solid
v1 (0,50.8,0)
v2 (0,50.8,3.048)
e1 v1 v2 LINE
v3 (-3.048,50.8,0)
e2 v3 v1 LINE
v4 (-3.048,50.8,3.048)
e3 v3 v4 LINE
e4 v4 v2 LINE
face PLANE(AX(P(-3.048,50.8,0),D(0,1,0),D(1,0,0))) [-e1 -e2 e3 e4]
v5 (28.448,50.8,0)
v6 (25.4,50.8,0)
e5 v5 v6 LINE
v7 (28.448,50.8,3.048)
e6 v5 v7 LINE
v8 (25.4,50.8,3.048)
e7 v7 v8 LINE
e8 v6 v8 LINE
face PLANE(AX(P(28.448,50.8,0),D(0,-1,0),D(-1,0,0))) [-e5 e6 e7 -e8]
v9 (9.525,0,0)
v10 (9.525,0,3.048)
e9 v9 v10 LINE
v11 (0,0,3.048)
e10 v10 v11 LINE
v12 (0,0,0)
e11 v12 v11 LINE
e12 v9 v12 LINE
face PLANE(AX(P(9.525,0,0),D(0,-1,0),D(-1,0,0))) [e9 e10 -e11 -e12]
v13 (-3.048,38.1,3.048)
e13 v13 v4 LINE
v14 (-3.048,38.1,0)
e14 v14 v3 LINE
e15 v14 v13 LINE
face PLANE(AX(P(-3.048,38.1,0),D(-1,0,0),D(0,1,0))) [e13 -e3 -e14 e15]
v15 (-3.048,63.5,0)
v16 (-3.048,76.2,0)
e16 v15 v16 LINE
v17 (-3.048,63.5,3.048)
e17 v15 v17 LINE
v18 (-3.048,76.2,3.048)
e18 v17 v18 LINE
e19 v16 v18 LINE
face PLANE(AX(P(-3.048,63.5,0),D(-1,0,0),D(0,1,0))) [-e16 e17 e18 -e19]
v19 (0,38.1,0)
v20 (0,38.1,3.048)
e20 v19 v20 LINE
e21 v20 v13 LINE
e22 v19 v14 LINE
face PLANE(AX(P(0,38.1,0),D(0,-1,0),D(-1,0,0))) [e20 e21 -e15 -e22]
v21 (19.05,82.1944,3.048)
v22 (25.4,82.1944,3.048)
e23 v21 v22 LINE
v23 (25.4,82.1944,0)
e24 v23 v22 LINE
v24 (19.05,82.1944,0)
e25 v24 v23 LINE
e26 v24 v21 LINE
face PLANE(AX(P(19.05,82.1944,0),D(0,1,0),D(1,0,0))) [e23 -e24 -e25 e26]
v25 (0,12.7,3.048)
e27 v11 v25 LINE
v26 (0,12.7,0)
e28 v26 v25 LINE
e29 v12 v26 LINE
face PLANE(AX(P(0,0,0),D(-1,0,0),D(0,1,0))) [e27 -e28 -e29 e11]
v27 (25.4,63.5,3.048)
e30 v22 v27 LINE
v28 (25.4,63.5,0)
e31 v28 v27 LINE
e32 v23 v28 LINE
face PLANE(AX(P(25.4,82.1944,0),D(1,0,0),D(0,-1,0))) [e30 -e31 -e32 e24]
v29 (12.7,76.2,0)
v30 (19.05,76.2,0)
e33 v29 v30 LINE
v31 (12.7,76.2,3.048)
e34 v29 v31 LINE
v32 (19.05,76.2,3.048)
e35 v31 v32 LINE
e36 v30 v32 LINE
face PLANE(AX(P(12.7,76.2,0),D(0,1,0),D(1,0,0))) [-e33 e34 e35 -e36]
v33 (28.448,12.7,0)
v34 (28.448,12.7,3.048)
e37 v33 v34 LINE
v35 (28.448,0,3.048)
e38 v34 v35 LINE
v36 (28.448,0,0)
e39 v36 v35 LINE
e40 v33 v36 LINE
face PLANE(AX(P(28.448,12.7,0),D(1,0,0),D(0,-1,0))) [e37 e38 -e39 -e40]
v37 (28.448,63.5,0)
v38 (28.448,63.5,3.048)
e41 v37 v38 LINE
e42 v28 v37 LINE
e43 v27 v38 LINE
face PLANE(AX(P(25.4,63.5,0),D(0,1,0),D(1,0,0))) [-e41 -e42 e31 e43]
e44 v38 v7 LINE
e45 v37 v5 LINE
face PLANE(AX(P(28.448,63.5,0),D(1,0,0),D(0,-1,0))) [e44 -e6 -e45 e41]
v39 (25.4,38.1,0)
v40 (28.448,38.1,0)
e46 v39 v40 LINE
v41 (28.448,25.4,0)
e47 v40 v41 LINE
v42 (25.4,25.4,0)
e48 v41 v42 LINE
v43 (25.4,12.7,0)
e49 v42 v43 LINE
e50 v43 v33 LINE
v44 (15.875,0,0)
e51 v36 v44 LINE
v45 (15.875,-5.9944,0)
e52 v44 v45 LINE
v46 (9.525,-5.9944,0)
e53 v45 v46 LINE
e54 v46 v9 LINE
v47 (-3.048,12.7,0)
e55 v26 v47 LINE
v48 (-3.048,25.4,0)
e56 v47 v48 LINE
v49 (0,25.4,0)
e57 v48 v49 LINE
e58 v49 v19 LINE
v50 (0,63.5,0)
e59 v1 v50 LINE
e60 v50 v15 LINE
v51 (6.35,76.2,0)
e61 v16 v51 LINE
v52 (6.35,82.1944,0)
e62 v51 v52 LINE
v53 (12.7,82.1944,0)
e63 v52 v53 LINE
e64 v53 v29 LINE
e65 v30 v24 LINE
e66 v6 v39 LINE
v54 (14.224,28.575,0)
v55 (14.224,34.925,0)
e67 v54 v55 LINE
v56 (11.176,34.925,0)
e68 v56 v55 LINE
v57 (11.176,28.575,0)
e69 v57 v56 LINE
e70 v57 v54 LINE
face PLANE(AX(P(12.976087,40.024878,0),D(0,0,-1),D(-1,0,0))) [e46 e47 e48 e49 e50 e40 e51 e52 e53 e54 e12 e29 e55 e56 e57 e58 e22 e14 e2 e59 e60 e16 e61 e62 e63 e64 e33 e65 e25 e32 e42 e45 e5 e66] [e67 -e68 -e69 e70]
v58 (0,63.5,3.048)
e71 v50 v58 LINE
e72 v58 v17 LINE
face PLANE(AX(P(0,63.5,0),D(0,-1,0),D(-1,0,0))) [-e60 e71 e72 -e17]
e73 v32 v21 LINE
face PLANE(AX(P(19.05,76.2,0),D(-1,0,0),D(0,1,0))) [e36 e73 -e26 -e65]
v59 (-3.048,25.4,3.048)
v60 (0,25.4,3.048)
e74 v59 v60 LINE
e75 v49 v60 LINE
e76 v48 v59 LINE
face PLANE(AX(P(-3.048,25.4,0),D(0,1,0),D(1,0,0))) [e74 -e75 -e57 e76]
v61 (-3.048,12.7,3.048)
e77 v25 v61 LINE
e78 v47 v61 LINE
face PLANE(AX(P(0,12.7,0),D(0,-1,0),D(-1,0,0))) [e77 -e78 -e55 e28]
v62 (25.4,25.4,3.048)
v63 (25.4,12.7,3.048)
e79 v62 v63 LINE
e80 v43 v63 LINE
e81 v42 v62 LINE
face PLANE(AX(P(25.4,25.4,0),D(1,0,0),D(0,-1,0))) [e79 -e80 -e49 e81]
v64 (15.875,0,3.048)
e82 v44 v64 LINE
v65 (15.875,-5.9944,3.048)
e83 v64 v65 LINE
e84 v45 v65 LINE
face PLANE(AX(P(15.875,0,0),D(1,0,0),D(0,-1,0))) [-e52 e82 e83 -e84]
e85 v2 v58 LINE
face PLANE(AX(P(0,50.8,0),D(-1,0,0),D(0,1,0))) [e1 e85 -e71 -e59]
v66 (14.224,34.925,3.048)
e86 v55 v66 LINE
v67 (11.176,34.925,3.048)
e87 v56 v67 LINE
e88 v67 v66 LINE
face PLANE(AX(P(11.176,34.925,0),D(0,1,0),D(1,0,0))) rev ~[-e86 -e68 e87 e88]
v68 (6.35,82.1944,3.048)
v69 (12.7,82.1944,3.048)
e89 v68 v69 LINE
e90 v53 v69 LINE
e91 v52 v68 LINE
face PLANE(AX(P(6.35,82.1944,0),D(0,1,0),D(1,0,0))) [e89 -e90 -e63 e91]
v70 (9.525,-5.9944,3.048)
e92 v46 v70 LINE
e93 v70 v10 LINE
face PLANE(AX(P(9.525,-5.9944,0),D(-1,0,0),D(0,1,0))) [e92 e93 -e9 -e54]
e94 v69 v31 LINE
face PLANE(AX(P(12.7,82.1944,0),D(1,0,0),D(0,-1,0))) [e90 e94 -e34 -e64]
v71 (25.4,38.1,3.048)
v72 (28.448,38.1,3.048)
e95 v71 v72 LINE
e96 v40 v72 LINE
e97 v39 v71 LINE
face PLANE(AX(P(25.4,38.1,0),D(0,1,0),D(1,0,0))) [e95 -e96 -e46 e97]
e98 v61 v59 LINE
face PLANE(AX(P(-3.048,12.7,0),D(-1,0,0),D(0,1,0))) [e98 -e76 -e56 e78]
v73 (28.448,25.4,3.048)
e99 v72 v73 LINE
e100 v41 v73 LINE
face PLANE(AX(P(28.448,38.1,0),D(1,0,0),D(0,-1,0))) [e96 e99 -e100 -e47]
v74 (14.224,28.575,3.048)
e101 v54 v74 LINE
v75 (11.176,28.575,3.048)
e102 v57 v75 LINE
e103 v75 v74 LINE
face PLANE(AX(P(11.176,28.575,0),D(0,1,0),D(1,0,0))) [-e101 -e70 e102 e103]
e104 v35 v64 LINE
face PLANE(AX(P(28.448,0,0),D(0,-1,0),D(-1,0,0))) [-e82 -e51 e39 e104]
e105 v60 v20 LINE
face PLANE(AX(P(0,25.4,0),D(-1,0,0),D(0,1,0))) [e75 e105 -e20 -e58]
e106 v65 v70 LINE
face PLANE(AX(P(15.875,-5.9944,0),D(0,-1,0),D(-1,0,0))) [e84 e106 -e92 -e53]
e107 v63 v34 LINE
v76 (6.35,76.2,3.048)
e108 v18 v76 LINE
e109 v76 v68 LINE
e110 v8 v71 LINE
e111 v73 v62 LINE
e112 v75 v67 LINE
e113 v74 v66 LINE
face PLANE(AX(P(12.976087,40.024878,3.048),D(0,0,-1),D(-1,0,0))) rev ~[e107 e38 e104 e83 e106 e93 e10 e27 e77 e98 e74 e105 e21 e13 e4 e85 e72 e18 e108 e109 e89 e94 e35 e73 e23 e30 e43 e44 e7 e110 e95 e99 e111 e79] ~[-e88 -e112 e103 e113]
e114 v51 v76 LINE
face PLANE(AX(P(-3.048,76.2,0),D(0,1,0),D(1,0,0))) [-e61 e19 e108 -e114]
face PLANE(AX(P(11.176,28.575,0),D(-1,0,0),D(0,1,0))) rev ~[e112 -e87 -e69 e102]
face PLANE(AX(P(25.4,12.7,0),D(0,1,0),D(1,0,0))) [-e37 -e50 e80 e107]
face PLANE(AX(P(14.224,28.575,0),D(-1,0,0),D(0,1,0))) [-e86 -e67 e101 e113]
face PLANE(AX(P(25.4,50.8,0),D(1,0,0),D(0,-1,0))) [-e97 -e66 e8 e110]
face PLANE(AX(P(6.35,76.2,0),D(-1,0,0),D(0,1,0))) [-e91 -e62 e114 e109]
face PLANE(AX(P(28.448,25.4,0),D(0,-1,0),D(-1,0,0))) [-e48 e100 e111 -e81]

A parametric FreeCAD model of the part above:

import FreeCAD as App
import Part
import Sketcher
from FreeCAD import Vector
Q = App.Units.Quantity

doc = App.newDocument("Part")
params = doc.addObject("Spreadsheet::Sheet", "Params")
for row, (alias, value) in enumerate([
    ("sketch1_height", "0.5 in"),
    ("sketch1_width", "0.25 in"),
    ("sketch1_width2", "0.12 in"),
    ("sketch1_width3", "0.375 in"),
    ("sketch1_height2", "0.236 in"),
    ("pad1_length", "0.12 in"),
], start=1):
    params.set(f"A{row}", alias)
    params.set(f"B{row}", "=" + value)
    params.setAlias(f"B{row}", alias)

body = doc.addObject("PartDesign::Body", "Body")

# Sketch on XY plane
sketch1 = body.newObject("Sketcher::SketchObject", "Sketch")
sketch1.AttachmentSupport = (doc.getObject("XY_Plane"), [""])
sketch1.MapMode = "FlatFace"
sketch1.addGeometry([
    Part.LineSegment(Vector(0, 12.7, 0), Vector(0, 0, 0)),  # 0
    Part.LineSegment(Vector(0, 0, 0), Vector(9.5, 0, 0)),  # 1
    Part.LineSegment(Vector(9.5, 0, 0), Vector(9.5, -6, 0)),  # 2
    Part.LineSegment(Vector(9.5, -6, 0), Vector(15.9, -6, 0)),  # 3
    Part.LineSegment(Vector(15.9, -6, 0), Vector(15.9, 0, 0)),  # 4
    Part.LineSegment(Vector(15.9, 0, 0), Vector(28.4, 0, 0)),  # 5
    Part.LineSegment(Vector(28.4, 0, 0), Vector(28.4, 12.7, 0)),  # 6
    Part.LineSegment(Vector(28.4, 12.7, 0), Vector(25.4, 12.7, 0)),  # 7
    Part.LineSegment(Vector(25.4, 12.7, 0), Vector(25.4, 25.4, 0)),  # 8
    Part.LineSegment(Vector(25.4, 25.4, 0), Vector(28.4, 25.4, 0)),  # 9
    Part.LineSegment(Vector(28.4, 25.4, 0), Vector(28.4, 38.1, 0)),  # 10
    Part.LineSegment(Vector(28.4, 38.1, 0), Vector(25.4, 38.1, 0)),  # 11
    Part.LineSegment(Vector(25.4, 38.1, 0), Vector(25.4, 50.8, 0)),  # 12
    Part.LineSegment(Vector(25.4, 50.8, 0), Vector(28.4, 50.8, 0)),  # 13
    Part.LineSegment(Vector(28.4, 50.8, 0), Vector(28.4, 63.5, 0)),  # 14
    Part.LineSegment(Vector(28.4, 63.5, 0), Vector(25.4, 63.5, 0)),  # 15
    Part.LineSegment(Vector(25.4, 63.5, 0), Vector(25.4, 82.2, 0)),  # 16
    Part.LineSegment(Vector(25.4, 82.2, 0), Vector(19.1, 82.2, 0)),  # 17
    Part.LineSegment(Vector(19.1, 82.2, 0), Vector(19.1, 76.2, 0)),  # 18
    Part.LineSegment(Vector(19.1, 76.2, 0), Vector(12.7, 76.2, 0)),  # 19
    Part.LineSegment(Vector(12.7, 76.2, 0), Vector(12.7, 82.2, 0)),  # 20
    Part.LineSegment(Vector(12.7, 82.2, 0), Vector(6.3, 82.2, 0)),  # 21
    Part.LineSegment(Vector(6.3, 82.2, 0), Vector(6.3, 76.2, 0)),  # 22
    Part.LineSegment(Vector(6.3, 76.2, 0), Vector(-3, 76.2, 0)),  # 23
    Part.LineSegment(Vector(-3, 76.2, 0), Vector(-3, 63.5, 0)),  # 24
    Part.LineSegment(Vector(-3, 63.5, 0), Vector(0, 63.5, 0)),  # 25
    Part.LineSegment(Vector(0, 63.5, 0), Vector(0, 50.8, 0)),  # 26
    Part.LineSegment(Vector(0, 50.8, 0), Vector(-3, 50.8, 0)),  # 27
    Part.LineSegment(Vector(-3, 50.8, 0), Vector(-3, 38.1, 0)),  # 28
    Part.LineSegment(Vector(-3, 38.1, 0), Vector(0, 38.1, 0)),  # 29
    Part.LineSegment(Vector(0, 38.1, 0), Vector(0, 25.4, 0)),  # 30
    Part.LineSegment(Vector(0, 25.4, 0), Vector(-3, 25.4, 0)),  # 31
    Part.LineSegment(Vector(-3, 25.4, 0), Vector(-3, 12.7, 0)),  # 32
    Part.LineSegment(Vector(-3, 12.7, 0), Vector(0, 12.7, 0)),  # 33
    Part.LineSegment(Vector(11.2, 28.6, 0), Vector(11.2, 34.9, 0)),  # 34
    Part.LineSegment(Vector(11.2, 34.9, 0), Vector(14.2, 34.9, 0)),  # 35
    Part.LineSegment(Vector(14.2, 34.9, 0), Vector(14.2, 28.6, 0)),  # 36
    Part.LineSegment(Vector(14.2, 28.6, 0), Vector(11.2, 28.6, 0)),  # 37
], False)
sketch1.addConstraint([
    Sketcher.Constraint("Coincident", 0, 2, 1, 1),
    Sketcher.Constraint("Coincident", 1, 2, 2, 1),
    Sketcher.Constraint("Coincident", 2, 2, 3, 1),
    Sketcher.Constraint("Coincident", 3, 2, 4, 1),
    Sketcher.Constraint("Coincident", 4, 2, 5, 1),
    Sketcher.Constraint("Coincident", 5, 2, 6, 1),
    Sketcher.Constraint("Coincident", 6, 2, 7, 1),
    Sketcher.Constraint("Coincident", 7, 2, 8, 1),
    Sketcher.Constraint("Coincident", 8, 2, 9, 1),
    Sketcher.Constraint("Coincident", 9, 2, 10, 1),
    Sketcher.Constraint("Coincident", 10, 2, 11, 1),
    Sketcher.Constraint("Coincident", 11, 2, 12, 1),
    Sketcher.Constraint("Coincident", 12, 2, 13, 1),
    Sketcher.Constraint("Coincident", 13, 2, 14, 1),
    Sketcher.Constraint("Coincident", 14, 2, 15, 1),
    Sketcher.Constraint("Coincident", 15, 2, 16, 1),
    Sketcher.Constraint("Coincident", 16, 2, 17, 1),
    Sketcher.Constraint("Coincident", 17, 2, 18, 1),
    Sketcher.Constraint("Coincident", 18, 2, 19, 1),
    Sketcher.Constraint("Coincident", 19, 2, 20, 1),
    Sketcher.Constraint("Coincident", 20, 2, 21, 1),
    Sketcher.Constraint("Coincident", 21, 2, 22, 1),
    Sketcher.Constraint("Coincident", 22, 2, 23, 1),
    Sketcher.Constraint("Coincident", 23, 2, 24, 1),
    Sketcher.Constraint("Coincident", 24, 2, 25, 1),
    Sketcher.Constraint("Coincident", 25, 2, 26, 1),
    Sketcher.Constraint("Coincident", 26, 2, 27, 1),
    Sketcher.Constraint("Coincident", 27, 2, 28, 1),
    Sketcher.Constraint("Coincident", 28, 2, 29, 1),
    Sketcher.Constraint("Coincident", 29, 2, 30, 1),
    Sketcher.Constraint("Coincident", 30, 2, 31, 1),
    Sketcher.Constraint("Coincident", 31, 2, 32, 1),
    Sketcher.Constraint("Coincident", 32, 2, 33, 1),
    Sketcher.Constraint("Coincident", 33, 2, 0, 1),
    Sketcher.Constraint("Coincident", 34, 2, 35, 1),
    Sketcher.Constraint("Coincident", 35, 2, 36, 1),
    Sketcher.Constraint("Coincident", 36, 2, 37, 1),
    Sketcher.Constraint("Coincident", 37, 2, 34, 1),
    Sketcher.Constraint("Vertical", 0),
    Sketcher.Constraint("Horizontal", 1),
    Sketcher.Constraint("Vertical", 2),
    Sketcher.Constraint("Horizontal", 3),
    Sketcher.Constraint("Vertical", 4),
    Sketcher.Constraint("Horizontal", 5),
    Sketcher.Constraint("Vertical", 6),
    Sketcher.Constraint("Horizontal", 7),
    Sketcher.Constraint("Vertical", 8),
    Sketcher.Constraint("Horizontal", 9),
    Sketcher.Constraint("Vertical", 10),
    Sketcher.Constraint("Horizontal", 11),
    Sketcher.Constraint("Vertical", 12),
    Sketcher.Constraint("Horizontal", 13),
    Sketcher.Constraint("Vertical", 14),
    Sketcher.Constraint("Horizontal", 15),
    Sketcher.Constraint("Vertical", 16),
    Sketcher.Constraint("Horizontal", 17),
    Sketcher.Constraint("Vertical", 18),
    Sketcher.Constraint("Horizontal", 19),
    Sketcher.Constraint("Vertical", 20),
    Sketcher.Constraint("Horizontal", 21),
    Sketcher.Constraint("Vertical", 22),
    Sketcher.Constraint("Horizontal", 23),
    Sketcher.Constraint("Vertical", 24),
    Sketcher.Constraint("Horizontal", 25),
    Sketcher.Constraint("Vertical", 26),
    Sketcher.Constraint("Horizontal", 27),
    Sketcher.Constraint("Vertical", 28),
    Sketcher.Constraint("Horizontal", 29),
    Sketcher.Constraint("Vertical", 30),
    Sketcher.Constraint("Horizontal", 31),
    Sketcher.Constraint("Vertical", 32),
    Sketcher.Constraint("Horizontal", 33),
    Sketcher.Constraint("Vertical", 34),
    Sketcher.Constraint("Horizontal", 35),
    Sketcher.Constraint("Vertical", 36),
    Sketcher.Constraint("Horizontal", 37),
    Sketcher.Constraint("Coincident", 0, 2, -1, 1),
    Sketcher.Constraint("PointOnObject", 4, 2, -1),
    Sketcher.Constraint("PointOnObject", 25, 2, -2),
    Sketcher.Constraint("PointOnObject", 29, 2, -2),
    Sketcher.Constraint("Horizontal", 17, 2, 20, 2),
    Sketcher.Constraint("Horizontal", 19, 2, 22, 2),
    Sketcher.Constraint("Horizontal", 15, 2, 24, 2),
    Sketcher.Constraint("Horizontal", 13, 2, 26, 2),
    Sketcher.Constraint("Horizontal", 11, 2, 28, 2),
    Sketcher.Constraint("Horizontal", 9, 2, 30, 2),
    Sketcher.Constraint("Horizontal", 7, 2, 32, 2),
    Sketcher.Constraint("Vertical", 6, 2, 9, 2),
    Sketcher.Constraint("Vertical", 8, 2, 11, 2),
    Sketcher.Constraint("Vertical", 10, 2, 13, 2),
    Sketcher.Constraint("Vertical", 12, 2, 15, 2),
    Sketcher.Constraint("Vertical", 24, 2, 27, 2),
    Sketcher.Constraint("Vertical", 28, 2, 31, 2),
    Sketcher.Constraint("Equal", 3, 17),
    Sketcher.Constraint("Equal", 17, 19),
    Sketcher.Constraint("Equal", 19, 21),
    Sketcher.Constraint("Equal", 15, 25),
    Sketcher.Constraint("Equal", 33, 35),
    Sketcher.Constraint("Equal", 6, 8),
    Sketcher.Constraint("Equal", 8, 10),
    Sketcher.Constraint("Equal", 10, 12),
    Sketcher.Constraint("Equal", 12, 14),
    Sketcher.Constraint("Equal", 4, 18),
    Sketcher.Constraint("Equal", 14, 24),
    Sketcher.Constraint("Equal", 21, 34),
    Sketcher.Constraint("DistanceY", 0, 2, 0, 1, Q("0.5 in")),
    Sketcher.Constraint("DistanceX", -1, 1, 7, 2, Q("1 in")),
    Sketcher.Constraint("DistanceX", 3, 1, 3, 2, Q("0.25 in")),
    Sketcher.Constraint("DistanceX", 7, 2, 7, 1, Q("0.12 in")),
    Sketcher.Constraint("DistanceX", 1, 1, 1, 2, Q("0.375 in")),
    Sketcher.Constraint("DistanceY", 2, 2, 2, 1, Q("0.236 in")),
    Sketcher.Constraint("DistanceX", -1, 1, 34, 2, Q("0.44 in")),
    Sketcher.Constraint("DistanceY", -1, 1, 34, 2, Q("1.375 in")),
])
sketch1.setExpression("Constraints[105]", "Params.sketch1_height")
sketch1.setExpression("Constraints[107]", "Params.sketch1_width")
sketch1.setExpression("Constraints[108]", "Params.sketch1_width2")
sketch1.setExpression("Constraints[109]", "Params.sketch1_width3")
sketch1.setExpression("Constraints[110]", "Params.sketch1_height2")
pad1 = body.newObject("PartDesign::Pad", "Pad")
pad1.Profile = sketch1
pad1.setExpression("Length", "Params.pad1_length")

doc.recompute()
